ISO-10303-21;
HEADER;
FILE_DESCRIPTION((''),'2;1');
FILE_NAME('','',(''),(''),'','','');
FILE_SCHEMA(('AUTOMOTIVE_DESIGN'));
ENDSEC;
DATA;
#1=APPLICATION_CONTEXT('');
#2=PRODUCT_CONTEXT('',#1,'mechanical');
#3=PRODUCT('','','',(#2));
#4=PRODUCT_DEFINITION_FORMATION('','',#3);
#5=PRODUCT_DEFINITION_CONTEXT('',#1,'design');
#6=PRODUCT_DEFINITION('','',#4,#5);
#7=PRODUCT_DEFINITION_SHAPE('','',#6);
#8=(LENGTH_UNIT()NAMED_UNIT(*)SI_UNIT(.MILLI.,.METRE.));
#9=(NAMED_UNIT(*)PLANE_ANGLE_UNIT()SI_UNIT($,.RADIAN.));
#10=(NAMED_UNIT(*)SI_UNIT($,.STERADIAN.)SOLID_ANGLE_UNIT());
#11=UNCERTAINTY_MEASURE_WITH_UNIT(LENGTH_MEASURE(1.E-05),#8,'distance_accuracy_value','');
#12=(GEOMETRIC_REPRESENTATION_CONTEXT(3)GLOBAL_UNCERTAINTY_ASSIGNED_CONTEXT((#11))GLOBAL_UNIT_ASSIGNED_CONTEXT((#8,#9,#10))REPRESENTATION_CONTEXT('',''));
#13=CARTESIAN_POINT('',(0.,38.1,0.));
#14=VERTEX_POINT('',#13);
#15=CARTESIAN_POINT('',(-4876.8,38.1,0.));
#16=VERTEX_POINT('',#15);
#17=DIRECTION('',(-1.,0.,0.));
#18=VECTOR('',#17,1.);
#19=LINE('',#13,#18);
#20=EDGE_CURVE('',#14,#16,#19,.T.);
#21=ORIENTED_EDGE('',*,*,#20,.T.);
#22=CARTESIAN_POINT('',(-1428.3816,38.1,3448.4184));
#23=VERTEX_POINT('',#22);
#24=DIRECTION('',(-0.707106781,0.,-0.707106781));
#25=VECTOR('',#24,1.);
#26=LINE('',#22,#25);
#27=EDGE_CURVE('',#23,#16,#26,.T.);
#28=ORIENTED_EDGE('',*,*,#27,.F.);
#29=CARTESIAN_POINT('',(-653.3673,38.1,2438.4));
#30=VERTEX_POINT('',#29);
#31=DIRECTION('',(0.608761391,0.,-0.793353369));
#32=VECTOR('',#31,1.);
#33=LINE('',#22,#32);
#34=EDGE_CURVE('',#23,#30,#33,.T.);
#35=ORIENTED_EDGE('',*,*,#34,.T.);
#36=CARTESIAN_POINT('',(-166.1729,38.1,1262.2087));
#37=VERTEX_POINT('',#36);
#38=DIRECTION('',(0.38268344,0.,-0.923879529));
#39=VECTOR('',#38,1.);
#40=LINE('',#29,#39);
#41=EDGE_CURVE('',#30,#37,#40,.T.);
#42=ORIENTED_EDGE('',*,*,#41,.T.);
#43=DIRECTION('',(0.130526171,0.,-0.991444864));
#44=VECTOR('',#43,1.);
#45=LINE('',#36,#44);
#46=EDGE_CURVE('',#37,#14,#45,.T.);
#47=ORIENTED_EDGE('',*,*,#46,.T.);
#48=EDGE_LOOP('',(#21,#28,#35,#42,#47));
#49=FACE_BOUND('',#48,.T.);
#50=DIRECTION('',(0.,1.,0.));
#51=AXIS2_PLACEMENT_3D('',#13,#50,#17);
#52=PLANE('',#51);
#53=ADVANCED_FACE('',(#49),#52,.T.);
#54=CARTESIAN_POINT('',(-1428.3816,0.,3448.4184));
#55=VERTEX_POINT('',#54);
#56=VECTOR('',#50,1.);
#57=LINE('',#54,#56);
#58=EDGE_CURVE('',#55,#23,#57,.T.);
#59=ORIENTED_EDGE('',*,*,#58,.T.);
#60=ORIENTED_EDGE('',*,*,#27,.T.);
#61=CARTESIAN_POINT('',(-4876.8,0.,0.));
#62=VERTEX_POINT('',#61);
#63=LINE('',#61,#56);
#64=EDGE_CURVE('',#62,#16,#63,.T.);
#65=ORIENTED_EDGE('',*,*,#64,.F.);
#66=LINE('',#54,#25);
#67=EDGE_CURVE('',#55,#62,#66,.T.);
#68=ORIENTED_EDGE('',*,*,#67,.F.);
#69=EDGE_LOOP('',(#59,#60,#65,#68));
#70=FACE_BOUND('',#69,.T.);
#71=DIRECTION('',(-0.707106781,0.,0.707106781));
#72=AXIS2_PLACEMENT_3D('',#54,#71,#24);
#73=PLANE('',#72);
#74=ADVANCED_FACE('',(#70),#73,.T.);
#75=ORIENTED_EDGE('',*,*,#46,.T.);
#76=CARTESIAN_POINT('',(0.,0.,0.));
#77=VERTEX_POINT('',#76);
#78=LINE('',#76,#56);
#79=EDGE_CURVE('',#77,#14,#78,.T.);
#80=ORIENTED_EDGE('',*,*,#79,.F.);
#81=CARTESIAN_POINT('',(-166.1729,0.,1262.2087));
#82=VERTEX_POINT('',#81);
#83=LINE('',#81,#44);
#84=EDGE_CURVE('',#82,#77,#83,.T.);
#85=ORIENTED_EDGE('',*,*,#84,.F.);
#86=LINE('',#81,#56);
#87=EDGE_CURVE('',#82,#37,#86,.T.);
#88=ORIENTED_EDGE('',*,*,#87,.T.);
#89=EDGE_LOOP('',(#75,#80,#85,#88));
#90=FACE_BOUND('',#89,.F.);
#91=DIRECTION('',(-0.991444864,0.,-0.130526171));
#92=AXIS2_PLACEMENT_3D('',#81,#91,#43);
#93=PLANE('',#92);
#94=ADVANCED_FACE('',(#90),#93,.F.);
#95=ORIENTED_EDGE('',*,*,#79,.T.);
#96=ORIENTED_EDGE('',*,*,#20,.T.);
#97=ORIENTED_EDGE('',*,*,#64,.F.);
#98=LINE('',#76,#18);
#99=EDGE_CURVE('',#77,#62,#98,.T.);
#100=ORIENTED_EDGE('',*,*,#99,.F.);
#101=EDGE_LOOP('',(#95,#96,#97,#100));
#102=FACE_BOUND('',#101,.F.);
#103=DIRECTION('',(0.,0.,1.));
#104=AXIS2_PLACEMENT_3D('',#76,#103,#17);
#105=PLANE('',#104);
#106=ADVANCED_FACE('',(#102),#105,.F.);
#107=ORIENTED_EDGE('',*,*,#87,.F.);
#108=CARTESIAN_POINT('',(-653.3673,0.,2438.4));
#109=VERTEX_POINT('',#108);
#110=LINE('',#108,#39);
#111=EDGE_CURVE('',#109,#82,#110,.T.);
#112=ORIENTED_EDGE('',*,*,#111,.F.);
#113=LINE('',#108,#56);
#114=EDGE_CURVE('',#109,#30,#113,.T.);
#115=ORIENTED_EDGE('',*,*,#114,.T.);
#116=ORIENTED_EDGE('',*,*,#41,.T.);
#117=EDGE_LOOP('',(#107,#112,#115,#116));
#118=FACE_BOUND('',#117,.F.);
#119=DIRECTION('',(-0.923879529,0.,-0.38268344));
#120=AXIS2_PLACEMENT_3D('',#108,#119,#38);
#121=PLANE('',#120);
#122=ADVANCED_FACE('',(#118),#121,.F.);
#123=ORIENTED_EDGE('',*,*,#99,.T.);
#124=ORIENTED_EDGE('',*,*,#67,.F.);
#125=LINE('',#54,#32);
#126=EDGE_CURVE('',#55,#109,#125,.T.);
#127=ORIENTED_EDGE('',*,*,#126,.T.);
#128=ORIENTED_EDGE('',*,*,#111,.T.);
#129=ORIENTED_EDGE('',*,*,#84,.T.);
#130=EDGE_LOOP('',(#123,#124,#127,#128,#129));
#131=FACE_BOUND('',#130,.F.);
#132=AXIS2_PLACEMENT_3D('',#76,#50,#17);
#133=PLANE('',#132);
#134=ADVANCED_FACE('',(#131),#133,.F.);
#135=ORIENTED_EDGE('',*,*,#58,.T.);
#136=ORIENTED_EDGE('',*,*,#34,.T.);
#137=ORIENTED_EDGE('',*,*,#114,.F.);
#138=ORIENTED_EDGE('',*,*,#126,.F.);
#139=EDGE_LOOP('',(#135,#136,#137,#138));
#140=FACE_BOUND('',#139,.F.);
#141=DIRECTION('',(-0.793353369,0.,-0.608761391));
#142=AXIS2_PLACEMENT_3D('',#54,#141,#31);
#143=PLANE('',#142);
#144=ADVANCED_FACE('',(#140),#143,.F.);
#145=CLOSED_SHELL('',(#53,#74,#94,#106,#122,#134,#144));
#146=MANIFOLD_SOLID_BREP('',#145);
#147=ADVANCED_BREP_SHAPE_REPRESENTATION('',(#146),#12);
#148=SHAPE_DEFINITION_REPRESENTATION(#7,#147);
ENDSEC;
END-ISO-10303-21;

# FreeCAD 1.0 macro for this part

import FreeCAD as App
import Part
import Sketcher
Q = App.Units.Quantity

doc = App.newDocument("Part")
body = doc.addObject("PartDesign::Body", "Body")

# Sketch on XZ plane
sketch1 = doc.addObject("Sketcher::SketchObject", "Sketch")
body.addObject(sketch1)
sketch1.AttachmentSupport = (doc.XZ_Plane, [""])
sketch1.MapMode = "FlatFace"
sketch1.addGeometry([
    Part.LineSegment(App.Vector(-166, 1262, 0), App.Vector(0, 0, 0)),  # 0
    Part.LineSegment(App.Vector(0, 0, 0), App.Vector(-4877, 0, 0)),  # 1
    Part.LineSegment(App.Vector(-4877, 0, 0), App.Vector(-1428, 3448, 0)),  # 2
    Part.LineSegment(App.Vector(-1428, 3448, 0), App.Vector(-653, 2438, 0)),  # 3
    Part.LineSegment(App.Vector(-653, 2438, 0), App.Vector(-166, 1262, 0)),  # 4
], False)
sketch1.addConstraint([
    Sketcher.Constraint("Coincident", 0, 2, 1, 1),
    Sketcher.Constraint("Coincident", 1, 2, 2, 1),
    Sketcher.Constraint("Coincident", 2, 2, 3, 1),
    Sketcher.Constraint("Coincident", 3, 2, 4, 1),
    Sketcher.Constraint("Coincident", 4, 2, 0, 1),
    Sketcher.Constraint("Horizontal", 1),
    Sketcher.Constraint("Coincident", 0, 2, -1, 1),
    Sketcher.Constraint("Equal", 0, 3),
    Sketcher.Constraint("Equal", 3, 4),
    Sketcher.Constraint("DistanceX", 1, 2, 1, 1, Q("192 in")),
    Sketcher.Constraint("Distance", 2, Q("192 in")),
    Sketcher.Constraint("Angle", 2, Q("45 deg")),
    Sketcher.Constraint("DistanceY", -1, 1, 3, 2, Q("96 in")),
    Sketcher.Constraint("Angle", 0, Q("-82.5 deg")),
])
pad1 = doc.addObject("PartDesign::Pad", "Pad")
body.addObject(pad1)
pad1.Profile = sketch1
pad1.Length = Q("1.5 in")
pad1.Reversed = True

doc.recompute()
